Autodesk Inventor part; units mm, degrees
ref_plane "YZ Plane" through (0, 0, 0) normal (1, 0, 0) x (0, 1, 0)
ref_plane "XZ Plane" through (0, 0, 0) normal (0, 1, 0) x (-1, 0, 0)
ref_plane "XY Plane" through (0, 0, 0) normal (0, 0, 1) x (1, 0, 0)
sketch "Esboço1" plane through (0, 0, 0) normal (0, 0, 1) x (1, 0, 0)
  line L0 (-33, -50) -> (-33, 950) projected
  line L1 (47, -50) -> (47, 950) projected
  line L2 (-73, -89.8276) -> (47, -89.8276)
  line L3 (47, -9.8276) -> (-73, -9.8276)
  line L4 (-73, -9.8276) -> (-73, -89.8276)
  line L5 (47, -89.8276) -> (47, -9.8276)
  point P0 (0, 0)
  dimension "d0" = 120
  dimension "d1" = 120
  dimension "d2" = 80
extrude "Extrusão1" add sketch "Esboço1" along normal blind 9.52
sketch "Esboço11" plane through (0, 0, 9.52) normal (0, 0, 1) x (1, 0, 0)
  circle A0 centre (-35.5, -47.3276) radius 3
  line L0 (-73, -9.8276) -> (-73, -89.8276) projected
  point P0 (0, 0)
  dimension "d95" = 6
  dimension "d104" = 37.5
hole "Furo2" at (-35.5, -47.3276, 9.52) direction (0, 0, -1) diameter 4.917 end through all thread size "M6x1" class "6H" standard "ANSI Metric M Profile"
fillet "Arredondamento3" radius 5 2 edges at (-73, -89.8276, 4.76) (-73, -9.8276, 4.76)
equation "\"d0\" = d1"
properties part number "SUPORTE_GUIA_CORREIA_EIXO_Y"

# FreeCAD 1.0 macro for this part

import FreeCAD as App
import Part
import Sketcher


def edges_at(feature, points):
    """Names of the edges that pass closest to the given points."""
    edges = feature.Shape.Edges
    near = lambda p: min(range(len(edges)), key=lambda i: edges[i].distToShape(Part.Vertex(*p))[0])
    return sorted({f"Edge{near(p) + 1}" for p in points})


def add_polygon(sketch, points):
    """Adds a closed chain of lines whose ends are joined by coincident constraints."""
    first, n = sketch.GeometryCount, len(points)
    for a, b in zip(points, points[1:] + points[:1]):
        sketch.addGeometry(Part.LineSegment(App.Vector(*a, 0), App.Vector(*b, 0)), False)
    for i in range(n):
        sketch.addConstraint(Sketcher.Constraint("Coincident", first + i, 2, first + (i + 1) % n, 1))

doc = App.newDocument("Part")
body = doc.addObject("PartDesign::Body", "Body")

sketch1 = body.newObject("Sketcher::SketchObject", "Sketch")
sketch1.AttachmentSupport = (doc.getObject("XY_Plane"), [""])
sketch1.MapMode = "FlatFace"
add_polygon(sketch1, [(47, -90), (47, -10), (-73, -10), (-73, -90)])
sketch1.addConstraint(Sketcher.Constraint("Vertical", 0))
sketch1.addConstraint(Sketcher.Constraint("Horizontal", 1))
sketch1.addConstraint(Sketcher.Constraint("Vertical", 2))
sketch1.addConstraint(Sketcher.Constraint("Horizontal", 3))
sketch1.addConstraint(Sketcher.Constraint("DistanceX", 1, 2, 1, 1, 120.0))
sketch1.addConstraint(Sketcher.Constraint("DistanceY", 0, 1, 0, 2, 80.0))
sketch1.addConstraint(Sketcher.Constraint("DistanceX", -1, 1, 0, 2, 47.0))
sketch1.addConstraint(Sketcher.Constraint("DistanceY", 0, 2, -1, 1, 9.8276))
pad1 = body.newObject("PartDesign::Pad", "Pad")
pad1.Profile = sketch1
pad1.Length = 9.52

sketch2 = body.newObject("Sketcher::SketchObject", "Sketch001")
sketch2.AttachmentSupport = (doc.getObject("XY_Plane"), [""])
sketch2.MapMode = "FlatFace"
sketch2.AttachmentOffset = App.Placement(App.Vector(0, 0, 9.52), App.Rotation())
sketch2.addGeometry(Part.Circle(App.Vector(-35.5, -47.3, 0), App.Vector(0, 0, 1), 2.5), False)
sketch2.addConstraint(Sketcher.Constraint("Diameter", 0, 4.917))
sketch2.addConstraint(Sketcher.Constraint("DistanceX", 0, 3, -1, 1, 35.5))
sketch2.addConstraint(Sketcher.Constraint("DistanceY", 0, 3, -1, 1, 47.3276))
doc.recompute()
hole = body.newObject("PartDesign::Hole", "Hole")
hole.Profile = sketch2
hole.ThreadType = "None"
hole.Diameter = 4.917
hole.DepthType = "ThroughAll"
doc.recompute()

fillet = body.newObject("PartDesign::Fillet", "Fillet")
fillet.Base = (hole, edges_at(hole, [(-73, -89.828, 4.76), (-73, -9.828, 4.76)]))
fillet.Radius = 5

doc.recompute()
